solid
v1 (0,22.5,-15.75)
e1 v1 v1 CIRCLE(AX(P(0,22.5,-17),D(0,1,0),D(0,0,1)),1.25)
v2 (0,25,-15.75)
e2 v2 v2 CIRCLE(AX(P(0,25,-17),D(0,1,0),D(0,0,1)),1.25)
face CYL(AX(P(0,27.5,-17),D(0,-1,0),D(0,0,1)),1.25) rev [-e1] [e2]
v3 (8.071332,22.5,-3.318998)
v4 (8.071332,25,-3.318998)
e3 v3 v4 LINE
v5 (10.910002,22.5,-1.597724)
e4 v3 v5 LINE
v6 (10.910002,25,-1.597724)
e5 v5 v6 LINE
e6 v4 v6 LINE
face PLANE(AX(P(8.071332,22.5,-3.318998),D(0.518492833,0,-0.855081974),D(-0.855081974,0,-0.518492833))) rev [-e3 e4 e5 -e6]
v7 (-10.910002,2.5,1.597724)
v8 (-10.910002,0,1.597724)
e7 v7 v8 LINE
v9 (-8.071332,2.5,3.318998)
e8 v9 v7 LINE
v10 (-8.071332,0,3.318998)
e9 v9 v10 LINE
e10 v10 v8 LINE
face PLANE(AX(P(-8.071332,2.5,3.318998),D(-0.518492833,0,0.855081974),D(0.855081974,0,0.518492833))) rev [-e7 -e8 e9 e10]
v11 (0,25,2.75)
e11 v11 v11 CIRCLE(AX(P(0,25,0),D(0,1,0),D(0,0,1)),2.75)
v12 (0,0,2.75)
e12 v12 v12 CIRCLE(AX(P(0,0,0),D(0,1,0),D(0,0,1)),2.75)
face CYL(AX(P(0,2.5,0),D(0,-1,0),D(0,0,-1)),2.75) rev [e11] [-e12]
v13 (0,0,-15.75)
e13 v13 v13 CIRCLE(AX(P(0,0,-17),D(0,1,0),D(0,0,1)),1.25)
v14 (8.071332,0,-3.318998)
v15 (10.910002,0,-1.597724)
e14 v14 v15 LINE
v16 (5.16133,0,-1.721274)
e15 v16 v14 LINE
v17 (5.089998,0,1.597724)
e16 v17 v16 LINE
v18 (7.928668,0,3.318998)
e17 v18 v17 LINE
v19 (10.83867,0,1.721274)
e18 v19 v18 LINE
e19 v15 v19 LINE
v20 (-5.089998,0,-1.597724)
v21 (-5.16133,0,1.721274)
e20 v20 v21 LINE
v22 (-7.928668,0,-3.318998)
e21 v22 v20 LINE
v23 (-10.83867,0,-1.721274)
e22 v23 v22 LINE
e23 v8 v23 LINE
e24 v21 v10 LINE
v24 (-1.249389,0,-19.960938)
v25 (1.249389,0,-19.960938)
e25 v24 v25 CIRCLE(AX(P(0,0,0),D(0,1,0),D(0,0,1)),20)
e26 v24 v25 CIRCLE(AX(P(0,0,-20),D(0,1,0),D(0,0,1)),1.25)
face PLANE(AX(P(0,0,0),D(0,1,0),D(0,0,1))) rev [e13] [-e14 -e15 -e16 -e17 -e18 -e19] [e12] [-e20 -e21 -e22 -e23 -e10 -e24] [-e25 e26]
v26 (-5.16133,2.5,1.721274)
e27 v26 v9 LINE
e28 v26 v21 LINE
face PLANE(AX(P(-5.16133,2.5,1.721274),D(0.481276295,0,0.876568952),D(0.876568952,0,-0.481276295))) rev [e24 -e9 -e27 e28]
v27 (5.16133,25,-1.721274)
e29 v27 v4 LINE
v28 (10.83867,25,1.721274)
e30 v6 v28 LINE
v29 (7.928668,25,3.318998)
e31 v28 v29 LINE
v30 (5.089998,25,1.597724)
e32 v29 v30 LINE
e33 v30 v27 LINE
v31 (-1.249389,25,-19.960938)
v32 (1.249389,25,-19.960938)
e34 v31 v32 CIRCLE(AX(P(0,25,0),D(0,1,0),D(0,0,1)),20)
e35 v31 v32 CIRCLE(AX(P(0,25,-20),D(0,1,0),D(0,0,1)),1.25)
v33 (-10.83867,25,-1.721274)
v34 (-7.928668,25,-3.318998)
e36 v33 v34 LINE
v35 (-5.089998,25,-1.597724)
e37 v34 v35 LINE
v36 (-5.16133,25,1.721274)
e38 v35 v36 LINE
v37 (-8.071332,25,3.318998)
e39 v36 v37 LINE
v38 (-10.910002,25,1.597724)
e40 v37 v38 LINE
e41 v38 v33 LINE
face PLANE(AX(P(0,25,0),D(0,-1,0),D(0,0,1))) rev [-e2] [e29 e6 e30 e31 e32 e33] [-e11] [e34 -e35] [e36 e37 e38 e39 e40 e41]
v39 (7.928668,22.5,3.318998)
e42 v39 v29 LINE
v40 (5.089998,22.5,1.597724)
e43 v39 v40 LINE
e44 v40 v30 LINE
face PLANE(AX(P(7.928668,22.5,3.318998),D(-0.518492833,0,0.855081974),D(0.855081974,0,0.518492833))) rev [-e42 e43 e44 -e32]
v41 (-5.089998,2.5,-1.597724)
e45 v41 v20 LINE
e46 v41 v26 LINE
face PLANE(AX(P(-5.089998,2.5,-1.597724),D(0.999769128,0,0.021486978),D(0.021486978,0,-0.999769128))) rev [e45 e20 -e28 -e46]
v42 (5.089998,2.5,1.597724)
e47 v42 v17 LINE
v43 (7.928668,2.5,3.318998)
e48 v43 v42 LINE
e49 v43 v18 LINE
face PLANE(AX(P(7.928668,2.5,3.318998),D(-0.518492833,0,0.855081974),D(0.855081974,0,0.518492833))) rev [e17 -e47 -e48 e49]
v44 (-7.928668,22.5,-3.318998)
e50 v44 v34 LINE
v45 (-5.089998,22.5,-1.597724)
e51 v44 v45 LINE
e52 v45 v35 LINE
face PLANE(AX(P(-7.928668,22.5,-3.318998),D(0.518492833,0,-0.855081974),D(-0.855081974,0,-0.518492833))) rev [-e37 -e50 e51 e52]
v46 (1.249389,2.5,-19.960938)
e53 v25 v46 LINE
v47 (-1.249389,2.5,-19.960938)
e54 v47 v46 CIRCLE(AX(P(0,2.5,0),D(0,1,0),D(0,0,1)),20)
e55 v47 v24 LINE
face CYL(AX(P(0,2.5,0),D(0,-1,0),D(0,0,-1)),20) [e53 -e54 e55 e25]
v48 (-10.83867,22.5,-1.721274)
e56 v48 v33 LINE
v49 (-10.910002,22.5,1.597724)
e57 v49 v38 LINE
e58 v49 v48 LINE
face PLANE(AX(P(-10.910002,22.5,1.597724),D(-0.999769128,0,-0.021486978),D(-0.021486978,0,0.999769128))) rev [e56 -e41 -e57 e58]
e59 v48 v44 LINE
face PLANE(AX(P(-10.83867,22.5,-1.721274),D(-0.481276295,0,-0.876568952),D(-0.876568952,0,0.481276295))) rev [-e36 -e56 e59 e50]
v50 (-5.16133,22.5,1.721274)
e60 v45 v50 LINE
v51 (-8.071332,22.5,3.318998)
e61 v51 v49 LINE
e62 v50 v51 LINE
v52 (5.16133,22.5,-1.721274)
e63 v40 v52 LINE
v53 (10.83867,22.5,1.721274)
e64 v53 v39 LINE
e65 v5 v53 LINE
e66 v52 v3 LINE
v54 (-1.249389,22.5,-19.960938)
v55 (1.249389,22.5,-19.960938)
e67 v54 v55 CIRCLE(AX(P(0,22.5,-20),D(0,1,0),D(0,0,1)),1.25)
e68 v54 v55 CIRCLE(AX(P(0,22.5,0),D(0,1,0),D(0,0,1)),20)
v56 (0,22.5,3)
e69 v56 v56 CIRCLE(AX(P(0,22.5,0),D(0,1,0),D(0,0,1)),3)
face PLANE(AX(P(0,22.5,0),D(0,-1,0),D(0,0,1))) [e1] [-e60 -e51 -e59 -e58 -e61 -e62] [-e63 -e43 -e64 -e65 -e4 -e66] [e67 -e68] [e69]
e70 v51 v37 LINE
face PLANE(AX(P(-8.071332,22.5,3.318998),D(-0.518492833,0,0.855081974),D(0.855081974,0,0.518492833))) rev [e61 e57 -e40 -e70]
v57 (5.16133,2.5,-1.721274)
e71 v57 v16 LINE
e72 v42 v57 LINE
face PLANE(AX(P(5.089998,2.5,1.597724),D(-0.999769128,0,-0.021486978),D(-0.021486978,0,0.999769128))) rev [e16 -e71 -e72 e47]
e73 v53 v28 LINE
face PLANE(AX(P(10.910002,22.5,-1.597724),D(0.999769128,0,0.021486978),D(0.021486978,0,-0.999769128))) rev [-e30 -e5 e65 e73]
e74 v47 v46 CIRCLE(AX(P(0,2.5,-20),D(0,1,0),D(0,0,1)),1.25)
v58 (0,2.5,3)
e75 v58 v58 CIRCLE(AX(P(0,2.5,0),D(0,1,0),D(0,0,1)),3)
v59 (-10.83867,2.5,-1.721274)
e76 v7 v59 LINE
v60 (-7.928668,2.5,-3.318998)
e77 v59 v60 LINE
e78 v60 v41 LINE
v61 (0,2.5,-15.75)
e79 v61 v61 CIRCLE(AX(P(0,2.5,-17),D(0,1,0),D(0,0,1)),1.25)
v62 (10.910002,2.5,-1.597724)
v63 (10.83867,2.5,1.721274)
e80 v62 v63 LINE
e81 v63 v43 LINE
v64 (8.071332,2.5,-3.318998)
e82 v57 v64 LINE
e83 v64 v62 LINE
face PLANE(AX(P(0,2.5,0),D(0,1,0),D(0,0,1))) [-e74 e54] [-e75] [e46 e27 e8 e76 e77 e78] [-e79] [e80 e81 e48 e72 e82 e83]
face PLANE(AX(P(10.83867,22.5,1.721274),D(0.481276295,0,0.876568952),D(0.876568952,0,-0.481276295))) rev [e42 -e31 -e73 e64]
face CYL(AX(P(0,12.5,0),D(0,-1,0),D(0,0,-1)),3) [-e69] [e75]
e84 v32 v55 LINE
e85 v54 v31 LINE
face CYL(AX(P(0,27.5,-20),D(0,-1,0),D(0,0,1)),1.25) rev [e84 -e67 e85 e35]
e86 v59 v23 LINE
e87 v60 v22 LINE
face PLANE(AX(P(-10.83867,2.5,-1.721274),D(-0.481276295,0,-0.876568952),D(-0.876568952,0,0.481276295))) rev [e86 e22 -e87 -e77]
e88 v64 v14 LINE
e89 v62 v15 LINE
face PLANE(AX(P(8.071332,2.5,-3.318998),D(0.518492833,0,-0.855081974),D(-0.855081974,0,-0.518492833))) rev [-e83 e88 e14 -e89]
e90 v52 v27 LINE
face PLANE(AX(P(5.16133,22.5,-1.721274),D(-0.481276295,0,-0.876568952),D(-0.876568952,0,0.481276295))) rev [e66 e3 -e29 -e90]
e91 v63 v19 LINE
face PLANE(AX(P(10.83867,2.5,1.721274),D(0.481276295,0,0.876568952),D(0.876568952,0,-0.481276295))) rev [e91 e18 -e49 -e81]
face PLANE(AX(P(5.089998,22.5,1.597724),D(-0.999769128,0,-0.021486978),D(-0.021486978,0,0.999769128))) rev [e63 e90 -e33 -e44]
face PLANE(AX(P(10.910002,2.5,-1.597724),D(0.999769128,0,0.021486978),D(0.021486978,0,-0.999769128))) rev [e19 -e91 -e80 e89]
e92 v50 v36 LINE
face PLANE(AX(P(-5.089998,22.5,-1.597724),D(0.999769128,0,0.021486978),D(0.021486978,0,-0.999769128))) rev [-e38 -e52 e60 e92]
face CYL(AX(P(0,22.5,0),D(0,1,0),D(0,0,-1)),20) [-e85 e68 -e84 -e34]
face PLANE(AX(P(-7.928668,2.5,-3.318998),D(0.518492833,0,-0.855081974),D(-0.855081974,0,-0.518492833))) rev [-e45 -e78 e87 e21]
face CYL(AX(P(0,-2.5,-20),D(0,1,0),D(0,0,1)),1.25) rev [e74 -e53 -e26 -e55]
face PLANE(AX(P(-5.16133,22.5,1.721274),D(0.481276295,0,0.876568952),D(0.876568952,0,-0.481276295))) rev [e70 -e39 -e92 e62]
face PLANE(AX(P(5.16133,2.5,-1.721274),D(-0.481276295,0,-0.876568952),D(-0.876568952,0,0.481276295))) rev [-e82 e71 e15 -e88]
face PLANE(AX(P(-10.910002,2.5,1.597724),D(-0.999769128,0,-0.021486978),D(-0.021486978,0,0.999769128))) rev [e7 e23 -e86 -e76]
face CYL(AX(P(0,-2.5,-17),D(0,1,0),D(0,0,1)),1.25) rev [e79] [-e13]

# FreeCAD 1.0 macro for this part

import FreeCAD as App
import Part
import Sketcher


def add_polygon(sketch, points):
    """Adds a closed chain of lines whose ends are joined by coincident constraints."""
    first, n = sketch.GeometryCount, len(points)
    for a, b in zip(points, points[1:] + points[:1]):
        sketch.addGeometry(Part.LineSegment(App.Vector(*a, 0), App.Vector(*b, 0)), False)
    for i in range(n):
        sketch.addConstraint(Sketcher.Constraint("Coincident", first + i, 2, first + (i + 1) % n, 1))

doc = App.newDocument("Part")
params = doc.addObject("Spreadsheet::Sheet", "Params")
for row, (alias, value) in enumerate([
    ("sketch1_diameter", "40 mm"),
    ("sketch1_diameter2", "5.5 mm"),
    ("pad1_length", "2.5 mm"),
    ("pocket1_length", "2.5 mm"),
    ("sketch3_diameter", "2.5 mm"),
    ("pocket2_length", "5 mm"),
    ("sketch4_diameter", "6 mm"),
    ("sketch4_diameter2", "5.5 mm"),
    ("pad2_length", "10 mm"),
], start=1):
    params.set(f"A{row}", alias)
    params.set(f"B{row}", "=" + value)
    params.setAlias(f"B{row}", alias)

body = doc.addObject("PartDesign::Body", "Body")

sketch1 = doc.addObject("Sketcher::SketchObject", "Sketch")
body.addObject(sketch1)
sketch1.AttachmentSupport = (doc.XZ_Plane, [""])
sketch1.MapMode = "FlatFace"
sketch1.addGeometry(Part.Circle(App.Vector(0, 0, 0), App.Vector(0, 0, 1), 20), False)
sketch1.addGeometry(Part.Circle(App.Vector(0, 0, 0), App.Vector(0, 0, 1), 2.8), False)
sketch1.addConstraint(Sketcher.Constraint("Coincident", 0, 3, -1, 1))
sketch1.addConstraint(Sketcher.Constraint("Coincident", 1, 3, -1, 1))
sketch1.addConstraint(Sketcher.Constraint("Diameter", 0, 40.0))
sketch1.addConstraint(Sketcher.Constraint("Diameter", 1, 5.5))
sketch1.setExpression("Constraints[2]", "Params.sketch1_diameter")
sketch1.setExpression("Constraints[3]", "Params.sketch1_diameter2")
pad1 = doc.addObject("PartDesign::Pad", "Pad")
body.addObject(pad1)
pad1.Profile = sketch1
pad1.setExpression("Length", "Params.pad1_length")
pad1.Reversed = True

sketch2 = doc.addObject("Sketcher::SketchObject", "Sketch001")
body.addObject(sketch2)
sketch2.AttachmentSupport = (doc.XZ_Plane, [""])
sketch2.MapMode = "FlatFace"
add_polygon(sketch2, [(-5.2, 1.7), (-8.1, 3.3), (-10.9, 1.6), (-10.8, -1.7), (-7.9, -3.3), (-5.1, -1.6)])
add_polygon(sketch2, [(5.2, -1.7), (8.1, -3.3), (10.9, -1.6), (10.8, 1.7), (7.9, 3.3), (5.1, 1.6)])
sketch2.addConstraint(Sketcher.Constraint("Symmetric", 0, 2, 6, 2, -1, 1))
sketch2.addConstraint(Sketcher.Constraint("Symmetric", 1, 2, 7, 2, -1, 1))
sketch2.addConstraint(Sketcher.Constraint("Symmetric", 2, 2, 8, 2, -1, 1))
sketch2.addConstraint(Sketcher.Constraint("Symmetric", 3, 2, 9, 2, -1, 1))
sketch2.addConstraint(Sketcher.Constraint("Symmetric", 4, 2, 10, 2, -1, 1))
sketch2.addConstraint(Sketcher.Constraint("Symmetric", 5, 2, 11, 2, -1, 1))
sketch2.addConstraint(Sketcher.Constraint("Parallel", 0, 3))
sketch2.addConstraint(Sketcher.Constraint("Parallel", 1, 4))
sketch2.addConstraint(Sketcher.Constraint("Parallel", 2, 5))
sketch2.addConstraint(Sketcher.Constraint("Horizontal", 3, 2, 6, 2))
sketch2.addConstraint(Sketcher.Constraint("Horizontal", 4, 2, 7, 2))
sketch2.addConstraint(Sketcher.Constraint("Equal", 0, 1))
sketch2.addConstraint(Sketcher.Constraint("Equal", 1, 2))
sketch2.addConstraint(Sketcher.Constraint("DistanceX", 3, 2, 6, 2, 16.0))
sketch2.addConstraint(Sketcher.Constraint("DistanceX", 0, 2, -1, 1, 8.071332))
sketch2.addConstraint(Sketcher.Constraint("DistanceX", 2, 2, -1, 1, 10.83867))
sketch2.addConstraint(Sketcher.Constraint("DistanceX", 1, 2, 0, 2, 2.83867))
sketch2.addConstraint(Sketcher.Constraint("DistanceY", 2, 2, 0, 2, 5.040271))
pocket1 = doc.addObject("PartDesign::Pocket", "Pocket")
body.addObject(pocket1)
pocket1.Profile = sketch2
pocket1.setExpression("Length", "Params.pocket1_length")

sketch3 = doc.addObject("Sketcher::SketchObject", "Sketch002")
body.addObject(sketch3)
sketch3.AttachmentSupport = (doc.XZ_Plane, [""])
sketch3.MapMode = "FlatFace"
sketch3.AttachmentOffset = App.Placement(App.Vector(0, 0, -2.5), App.Rotation())
sketch3.addGeometry(Part.Circle(App.Vector(0, -17, 0), App.Vector(0, 0, 1), 1.2), False)
sketch3.addGeometry(Part.Circle(App.Vector(0, -20, 0), App.Vector(0, 0, 1), 1.2), False)
sketch3.addConstraint(Sketcher.Constraint("Equal", 0, 1))
sketch3.addConstraint(Sketcher.Constraint("PointOnObject", 0, 3, -2))
sketch3.addConstraint(Sketcher.Constraint("PointOnObject", 1, 3, -2))
sketch3.addConstraint(Sketcher.Constraint("Diameter", 0, 2.5))
sketch3.addConstraint(Sketcher.Constraint("DistanceY", 0, 3, -1, 1, 17.0))
sketch3.addConstraint(Sketcher.Constraint("DistanceY", 1, 3, -1, 1, 20.0))
sketch3.setExpression("Constraints[3]", "Params.sketch3_diameter")
pocket2 = doc.addObject("PartDesign::Pocket", "Pocket001")
body.addObject(pocket2)
pocket2.Profile = sketch3
pocket2.setExpression("Length", "Params.pocket2_length")
pocket2.Reversed = True

sketch4 = doc.addObject("Sketcher::SketchObject", "Sketch003")
body.addObject(sketch4)
sketch4.AttachmentSupport = (doc.XZ_Plane, [""])
sketch4.MapMode = "FlatFace"
sketch4.AttachmentOffset = App.Placement(App.Vector(0, 0, -2.5), App.Rotation())
sketch4.addGeometry(Part.Circle(App.Vector(0, 0, 0), App.Vector(0, 0, 1), 3), False)
sketch4.addGeometry(Part.Circle(App.Vector(0, 0, 0), App.Vector(0, 0, 1), 2.8), False)
sketch4.addConstraint(Sketcher.Constraint("Coincident", 0, 3, -1, 1))
sketch4.addConstraint(Sketcher.Constraint("Coincident", 1, 3, -1, 1))
sketch4.addConstraint(Sketcher.Constraint("Diameter", 0, 6.0))
sketch4.addConstraint(Sketcher.Constraint("Diameter", 1, 5.5))
sketch4.setExpression("Constraints[2]", "Params.sketch4_diameter")
sketch4.setExpression("Constraints[3]", "Params.sketch4_diameter2")
pad2 = doc.addObject("PartDesign::Pad", "Pad001")
body.addObject(pad2)
pad2.Profile = sketch4
pad2.setExpression("Length", "Params.pad2_length")
pad2.Reversed = True
body2 = doc.addObject("PartDesign::Body", "Body001")
doc.recompute()

body2.BaseFeature = body
doc.recompute()

mirroring = doc.addObject("Part::Mirroring", "Mirroring")
mirroring.Source = body
mirroring.Base = App.Vector(0, 12.5, 0)
mirroring.Normal = App.Vector(0, 1, 0)
body3 = doc.addObject("PartDesign::Body", "Body002")
body3.BaseFeature = mirroring
boolean = doc.addObject("PartDesign::Boolean", "Boolean")
body2.addObject(boolean)
boolean.Type = "Fuse"
boolean.addObjects([body3])
doc.recompute()
mirroring.Visibility = False

doc.recompute()
